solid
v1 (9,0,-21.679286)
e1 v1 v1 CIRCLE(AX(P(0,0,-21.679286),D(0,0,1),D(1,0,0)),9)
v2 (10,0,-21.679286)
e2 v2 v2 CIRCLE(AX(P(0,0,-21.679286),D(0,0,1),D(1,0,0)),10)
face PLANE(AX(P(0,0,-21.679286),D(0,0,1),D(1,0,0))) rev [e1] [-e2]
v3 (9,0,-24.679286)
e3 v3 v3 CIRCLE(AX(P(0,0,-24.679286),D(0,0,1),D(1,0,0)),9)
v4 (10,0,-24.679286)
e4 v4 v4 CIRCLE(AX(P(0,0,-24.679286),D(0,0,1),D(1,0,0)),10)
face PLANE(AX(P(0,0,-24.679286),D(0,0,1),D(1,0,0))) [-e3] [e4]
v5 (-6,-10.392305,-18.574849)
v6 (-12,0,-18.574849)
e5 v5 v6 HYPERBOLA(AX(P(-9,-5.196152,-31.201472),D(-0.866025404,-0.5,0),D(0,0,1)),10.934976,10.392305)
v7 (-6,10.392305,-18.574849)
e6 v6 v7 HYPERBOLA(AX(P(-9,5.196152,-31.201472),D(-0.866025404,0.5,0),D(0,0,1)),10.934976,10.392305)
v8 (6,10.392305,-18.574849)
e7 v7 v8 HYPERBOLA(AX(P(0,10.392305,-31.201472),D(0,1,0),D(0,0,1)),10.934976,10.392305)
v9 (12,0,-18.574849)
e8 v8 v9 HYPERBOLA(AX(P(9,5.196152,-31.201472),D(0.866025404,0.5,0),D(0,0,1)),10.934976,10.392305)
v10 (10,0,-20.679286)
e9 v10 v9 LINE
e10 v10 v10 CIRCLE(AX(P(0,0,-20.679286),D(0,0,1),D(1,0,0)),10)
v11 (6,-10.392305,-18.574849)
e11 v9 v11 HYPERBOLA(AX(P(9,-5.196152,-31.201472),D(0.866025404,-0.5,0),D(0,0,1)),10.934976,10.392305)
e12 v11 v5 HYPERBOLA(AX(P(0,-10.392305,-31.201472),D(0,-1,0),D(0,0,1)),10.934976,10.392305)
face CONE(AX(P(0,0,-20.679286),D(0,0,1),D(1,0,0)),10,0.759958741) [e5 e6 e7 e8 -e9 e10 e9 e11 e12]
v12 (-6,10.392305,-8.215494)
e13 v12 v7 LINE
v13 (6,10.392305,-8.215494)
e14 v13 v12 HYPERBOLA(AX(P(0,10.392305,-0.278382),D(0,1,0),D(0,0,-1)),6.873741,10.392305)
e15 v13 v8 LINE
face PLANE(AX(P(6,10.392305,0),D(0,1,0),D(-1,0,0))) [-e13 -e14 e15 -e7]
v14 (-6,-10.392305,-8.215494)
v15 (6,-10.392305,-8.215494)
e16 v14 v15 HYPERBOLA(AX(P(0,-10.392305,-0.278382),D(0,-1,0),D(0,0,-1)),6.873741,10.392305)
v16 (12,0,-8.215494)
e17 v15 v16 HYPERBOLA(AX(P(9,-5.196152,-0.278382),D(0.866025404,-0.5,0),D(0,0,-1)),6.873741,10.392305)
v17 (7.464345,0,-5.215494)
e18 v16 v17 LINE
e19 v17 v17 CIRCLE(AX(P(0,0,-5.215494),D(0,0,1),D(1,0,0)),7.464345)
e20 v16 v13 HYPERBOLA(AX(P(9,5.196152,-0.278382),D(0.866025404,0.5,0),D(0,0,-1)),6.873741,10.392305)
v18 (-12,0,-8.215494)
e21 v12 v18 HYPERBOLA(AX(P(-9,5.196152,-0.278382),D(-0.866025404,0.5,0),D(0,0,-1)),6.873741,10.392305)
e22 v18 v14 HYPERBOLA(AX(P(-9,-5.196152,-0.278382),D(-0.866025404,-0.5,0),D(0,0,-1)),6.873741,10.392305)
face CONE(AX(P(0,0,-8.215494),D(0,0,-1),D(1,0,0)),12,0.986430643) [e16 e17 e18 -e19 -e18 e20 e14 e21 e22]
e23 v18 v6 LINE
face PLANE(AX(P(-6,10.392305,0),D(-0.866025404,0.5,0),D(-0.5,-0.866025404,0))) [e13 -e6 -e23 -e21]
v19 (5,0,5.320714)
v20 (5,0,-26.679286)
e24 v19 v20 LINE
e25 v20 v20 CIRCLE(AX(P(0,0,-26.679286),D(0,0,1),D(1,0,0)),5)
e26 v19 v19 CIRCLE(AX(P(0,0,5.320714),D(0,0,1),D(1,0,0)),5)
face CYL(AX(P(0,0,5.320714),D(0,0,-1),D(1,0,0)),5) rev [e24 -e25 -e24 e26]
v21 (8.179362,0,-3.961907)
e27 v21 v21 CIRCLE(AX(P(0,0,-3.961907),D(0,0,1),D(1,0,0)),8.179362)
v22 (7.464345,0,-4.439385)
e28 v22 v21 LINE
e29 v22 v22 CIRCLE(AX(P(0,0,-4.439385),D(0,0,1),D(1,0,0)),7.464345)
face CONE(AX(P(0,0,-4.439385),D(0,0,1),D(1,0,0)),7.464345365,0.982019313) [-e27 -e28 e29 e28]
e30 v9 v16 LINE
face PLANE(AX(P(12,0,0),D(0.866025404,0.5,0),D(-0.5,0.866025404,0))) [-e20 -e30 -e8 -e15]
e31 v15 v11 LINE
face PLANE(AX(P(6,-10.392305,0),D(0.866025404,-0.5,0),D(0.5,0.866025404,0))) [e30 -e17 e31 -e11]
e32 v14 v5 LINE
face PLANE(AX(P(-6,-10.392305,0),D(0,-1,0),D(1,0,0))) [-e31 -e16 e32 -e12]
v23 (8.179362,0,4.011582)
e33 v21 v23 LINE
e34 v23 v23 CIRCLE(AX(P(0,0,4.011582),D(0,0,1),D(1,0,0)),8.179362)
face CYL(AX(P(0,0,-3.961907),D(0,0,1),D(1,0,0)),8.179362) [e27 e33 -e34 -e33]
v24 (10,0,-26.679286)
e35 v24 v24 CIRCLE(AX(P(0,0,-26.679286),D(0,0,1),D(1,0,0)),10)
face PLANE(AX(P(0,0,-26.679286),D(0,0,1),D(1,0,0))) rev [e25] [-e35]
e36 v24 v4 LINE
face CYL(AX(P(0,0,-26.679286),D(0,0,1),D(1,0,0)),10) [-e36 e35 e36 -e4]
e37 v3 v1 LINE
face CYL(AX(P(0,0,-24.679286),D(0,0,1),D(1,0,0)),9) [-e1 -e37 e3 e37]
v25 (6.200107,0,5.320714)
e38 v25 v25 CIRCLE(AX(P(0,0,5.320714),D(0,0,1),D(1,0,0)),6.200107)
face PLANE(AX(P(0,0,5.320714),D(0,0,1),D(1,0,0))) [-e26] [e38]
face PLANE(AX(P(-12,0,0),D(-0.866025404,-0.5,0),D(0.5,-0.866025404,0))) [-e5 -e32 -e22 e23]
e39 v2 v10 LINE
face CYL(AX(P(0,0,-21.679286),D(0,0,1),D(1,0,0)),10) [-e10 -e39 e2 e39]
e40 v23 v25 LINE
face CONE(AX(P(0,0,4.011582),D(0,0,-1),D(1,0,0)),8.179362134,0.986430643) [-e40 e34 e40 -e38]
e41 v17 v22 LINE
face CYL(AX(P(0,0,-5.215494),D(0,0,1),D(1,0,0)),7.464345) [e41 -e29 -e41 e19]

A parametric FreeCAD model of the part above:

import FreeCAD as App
import Part
import Sketcher
Q = App.Units.Quantity

doc = App.newDocument("Part")
body = doc.addObject("PartDesign::Body", "Body")

# Sketch on XZ plane
sketch1 = doc.addObject("Sketcher::SketchObject", "Sketch")
body.addObject(sketch1)
sketch1.AttachmentSupport = (doc.XZ_Plane, [""])
sketch1.MapMode = "FlatFace"
sketch1.addGeometry(Part.LineSegment(App.Vector(10, -26.7, 0), App.Vector(5, -26.7, 0)), False)
sketch1.addGeometry(Part.LineSegment(App.Vector(5, -26.7, 0), App.Vector(5, 5.3, 0)), False)
sketch1.addGeometry(Part.LineSegment(App.Vector(5, 5.3, 0), App.Vector(6.2, 5.3, 0)), False)
sketch1.addGeometry(Part.LineSegment(App.Vector(6.2, 5.3, 0), App.Vector(8.2, 4, 0)), False)
sketch1.addGeometry(Part.LineSegment(App.Vector(8.2, 4, 0), App.Vector(8.2, -4, 0)), False)
sketch1.addGeometry(Part.LineSegment(App.Vector(8.2, -4, 0), App.Vector(7.5, -4.4, 0)), False)
sketch1.addGeometry(Part.LineSegment(App.Vector(7.5, -4.4, 0), App.Vector(7.5, -5.2, 0)), False)
sketch1.addGeometry(Part.LineSegment(App.Vector(7.5, -5.2, 0), App.Vector(12, -8.2, 0)), False)
sketch1.addGeometry(Part.LineSegment(App.Vector(12, -8.2, 0), App.Vector(12, -18.6, 0)), False)
sketch1.addGeometry(Part.LineSegment(App.Vector(12, -18.6, 0), App.Vector(10, -20.7, 0)), False)
sketch1.addGeometry(Part.LineSegment(App.Vector(10, -20.7, 0), App.Vector(10, -21.7, 0)), False)
sketch1.addGeometry(Part.LineSegment(App.Vector(10, -21.7, 0), App.Vector(9, -21.7, 0)), False)
sketch1.addGeometry(Part.LineSegment(App.Vector(9, -21.7, 0), App.Vector(9, -24.7, 0)), False)
sketch1.addGeometry(Part.LineSegment(App.Vector(9, -24.7, 0), App.Vector(10, -24.7, 0)), False)
sketch1.addGeometry(Part.LineSegment(App.Vector(10, -24.7, 0), App.Vector(10, -26.7, 0)), False)
sketch1.addConstraint(Sketcher.Constraint("Coincident", 0, 2, 1, 1))
sketch1.addConstraint(Sketcher.Constraint("Coincident", 1, 2, 2, 1))
sketch1.addConstraint(Sketcher.Constraint("Coincident", 2, 2, 3, 1))
sketch1.addConstraint(Sketcher.Constraint("Coincident", 3, 2, 4, 1))
sketch1.addConstraint(Sketcher.Constraint("Coincident", 4, 2, 5, 1))
sketch1.addConstraint(Sketcher.Constraint("Coincident", 5, 2, 6, 1))
sketch1.addConstraint(Sketcher.Constraint("Coincident", 6, 2, 7, 1))
sketch1.addConstraint(Sketcher.Constraint("Coincident", 7, 2, 8, 1))
sketch1.addConstraint(Sketcher.Constraint("Coincident", 8, 2, 9, 1))
sketch1.addConstraint(Sketcher.Constraint("Coincident", 9, 2, 10, 1))
sketch1.addConstraint(Sketcher.Constraint("Coincident", 10, 2, 11, 1))
sketch1.addConstraint(Sketcher.Constraint("Coincident", 11, 2, 12, 1))
sketch1.addConstraint(Sketcher.Constraint("Coincident", 12, 2, 13, 1))
sketch1.addConstraint(Sketcher.Constraint("Coincident", 13, 2, 14, 1))
sketch1.addConstraint(Sketcher.Constraint("Coincident", 14, 2, 0, 1))
sketch1.addConstraint(Sketcher.Constraint("Horizontal", 0))
sketch1.addConstraint(Sketcher.Constraint("Vertical", 1))
sketch1.addConstraint(Sketcher.Constraint("Horizontal", 2))
sketch1.addConstraint(Sketcher.Constraint("Vertical", 4))
sketch1.addConstraint(Sketcher.Constraint("Vertical", 6))
sketch1.addConstraint(Sketcher.Constraint("Vertical", 8))
sketch1.addConstraint(Sketcher.Constraint("Vertical", 10))
sketch1.addConstraint(Sketcher.Constraint("Horizontal", 11))
sketch1.addConstraint(Sketcher.Constraint("Vertical", 12))
sketch1.addConstraint(Sketcher.Constraint("Horizontal", 13))
sketch1.addConstraint(Sketcher.Constraint("Vertical", 14))
sketch1.addConstraint(Sketcher.Constraint("Parallel", 3, 7))
sketch1.addConstraint(Sketcher.Constraint("Vertical", 10, 2, 13, 2))
sketch1.addConstraint(Sketcher.Constraint("Equal", 13, 10))
sketch1.addConstraint(Sketcher.Constraint("DistanceX", 0, 2, 0, 1, Q("5 mm")))
sketch1.addConstraint(Sketcher.Constraint("DistanceX", 11, 2, 11, 1, Q("1 mm")))
sketch1.addConstraint(Sketcher.Constraint("DistanceY", 1, 1, 1, 2, Q("32 mm")))
sketch1.addConstraint(Sketcher.Constraint("DistanceY", 12, 2, 12, 1, Q("3 mm")))
sketch1.addConstraint(Sketcher.Constraint("DistanceY", 14, 2, 14, 1, Q("2 mm")))
sketch1.addConstraint(Sketcher.Constraint("DistanceX", -1, 1, 0, 2, Q("5 mm")))
sketch1.addConstraint(Sketcher.Constraint("DistanceX", -1, 1, 7, 2, Q("12 mm")))
sketch1.addConstraint(Sketcher.Constraint("DistanceY", 7, 2, 6, 2, Q("3 mm")))
sketch1.addConstraint(Sketcher.Constraint("DistanceY", 4, 2, 4, 1, Q("7.973489 mm")))
sketch1.addConstraint(Sketcher.Constraint("DistanceY", 6, 2, 6, 1, Q("0.776109 mm")))
sketch1.addConstraint(Sketcher.Constraint("DistanceY", 5, 2, 2, 2, Q("9.760099 mm")))
sketch1.addConstraint(Sketcher.Constraint("Distance", 3, Q("2.373031 mm")))
sketch1.addConstraint(Sketcher.Constraint("Distance", 7, Q("5.438029 mm")))
sketch1.addConstraint(Sketcher.Constraint("DistanceX", 2, 1, 2, 2, Q("1.200107 mm")))
sketch1.addConstraint(Sketcher.Constraint("DistanceY", 8, 2, 8, 1, Q("10.359355 mm")))
sketch1.addConstraint(Sketcher.Constraint("DistanceY", 8, 2, -1, 1, Q("18.574849 mm")))
revolution = doc.addObject("PartDesign::Revolution", "Revolution")
body.addObject(revolution)
revolution.Profile = sketch1
revolution.ReferenceAxis = (sketch1, ["V_Axis"])
revolution.Angle = 360

# Sketch on XY plane
sketch2 = doc.addObject("Sketcher::SketchObject", "Sketch001")
body.addObject(sketch2)
sketch2.AttachmentSupport = (doc.XY_Plane, [""])
sketch2.MapMode = "FlatFace"
sketch2.addGeometry(Part.LineSegment(App.Vector(-18, 18, 0), App.Vector(-18, -18, 0)), False)
sketch2.addGeometry(Part.LineSegment(App.Vector(-18, -18, 0), App.Vector(18, -18, 0)), False)
sketch2.addGeometry(Part.LineSegment(App.Vector(18, -18, 0), App.Vector(18, 18, 0)), False)
sketch2.addGeometry(Part.LineSegment(App.Vector(18, 18, 0), App.Vector(-18, 18, 0)), False)
sketch2.addGeometry(Part.LineSegment(App.Vector(6, 10, 0), App.Vector(12, 0, 0)), False)
sketch2.addGeometry(Part.LineSegment(App.Vector(12, 0, 0), App.Vector(6, -10, 0)), False)
sketch2.addGeometry(Part.LineSegment(App.Vector(6, -10, 0), App.Vector(-6, -10, 0)), False)
sketch2.addGeometry(Part.LineSegment(App.Vector(-6, -10, 0), App.Vector(-12, 0, 0)), False)
sketch2.addGeometry(Part.LineSegment(App.Vector(-12, 0, 0), App.Vector(-6, 10, 0)), False)
sketch2.addGeometry(Part.LineSegment(App.Vector(-6, 10, 0), App.Vector(6, 10, 0)), False)
sketch2.addConstraint(Sketcher.Constraint("Coincident", 0, 2, 1, 1))
sketch2.addConstraint(Sketcher.Constraint("Coincident", 1, 2, 2, 1))
sketch2.addConstraint(Sketcher.Constraint("Coincident", 2, 2, 3, 1))
sketch2.addConstraint(Sketcher.Constraint("Coincident", 3, 2, 0, 1))
sketch2.addConstraint(Sketcher.Constraint("Coincident", 4, 2, 5, 1))
sketch2.addConstraint(Sketcher.Constraint("Coincident", 5, 2, 6, 1))
sketch2.addConstraint(Sketcher.Constraint("Coincident", 6, 2, 7, 1))
sketch2.addConstraint(Sketcher.Constraint("Coincident", 7, 2, 8, 1))
sketch2.addConstraint(Sketcher.Constraint("Coincident", 8, 2, 9, 1))
sketch2.addConstraint(Sketcher.Constraint("Coincident", 9, 2, 4, 1))
sketch2.addConstraint(Sketcher.Constraint("Vertical", 0))
sketch2.addConstraint(Sketcher.Constraint("Horizontal", 1))
sketch2.addConstraint(Sketcher.Constraint("Vertical", 2))
sketch2.addConstraint(Sketcher.Constraint("Horizontal", 3))
sketch2.addConstraint(Sketcher.Constraint("Horizontal", 6))
sketch2.addConstraint(Sketcher.Constraint("Horizontal", 9))
sketch2.addConstraint(Sketcher.Constraint("Symmetric", 0, 2, 2, 2, -1, 1))
sketch2.addConstraint(Sketcher.Constraint("Symmetric", 4, 2, 7, 2, -1, 1))
sketch2.addConstraint(Sketcher.Constraint("Symmetric", 5, 2, 8, 2, -1, 1))
sketch2.addConstraint(Sketcher.Constraint("PointOnObject", 4, 2, -1))
sketch2.addConstraint(Sketcher.Constraint("Parallel", 4, 7))
sketch2.addConstraint(Sketcher.Constraint("Vertical", 6, 2, 8, 2))
sketch2.addConstraint(Sketcher.Constraint("Equal", 3, 0))
sketch2.addConstraint(Sketcher.Constraint("DistanceX", 6, 2, 6, 1, Q("12 mm")))
sketch2.addConstraint(Sketcher.Constraint("Angle", 4, Q("-60 deg")))
sketch2.addConstraint(Sketcher.Constraint("Distance", 4, Q("12 mm")))
sketch2.addConstraint(Sketcher.Constraint("DistanceX", 1, 1, 1, 2, Q("35.33 mm")))
pocket1 = doc.addObject("PartDesign::Pocket", "Pocket")
body.addObject(pocket1)
pocket1.Profile = sketch2
pocket1.Length = 40

doc.recompute()
